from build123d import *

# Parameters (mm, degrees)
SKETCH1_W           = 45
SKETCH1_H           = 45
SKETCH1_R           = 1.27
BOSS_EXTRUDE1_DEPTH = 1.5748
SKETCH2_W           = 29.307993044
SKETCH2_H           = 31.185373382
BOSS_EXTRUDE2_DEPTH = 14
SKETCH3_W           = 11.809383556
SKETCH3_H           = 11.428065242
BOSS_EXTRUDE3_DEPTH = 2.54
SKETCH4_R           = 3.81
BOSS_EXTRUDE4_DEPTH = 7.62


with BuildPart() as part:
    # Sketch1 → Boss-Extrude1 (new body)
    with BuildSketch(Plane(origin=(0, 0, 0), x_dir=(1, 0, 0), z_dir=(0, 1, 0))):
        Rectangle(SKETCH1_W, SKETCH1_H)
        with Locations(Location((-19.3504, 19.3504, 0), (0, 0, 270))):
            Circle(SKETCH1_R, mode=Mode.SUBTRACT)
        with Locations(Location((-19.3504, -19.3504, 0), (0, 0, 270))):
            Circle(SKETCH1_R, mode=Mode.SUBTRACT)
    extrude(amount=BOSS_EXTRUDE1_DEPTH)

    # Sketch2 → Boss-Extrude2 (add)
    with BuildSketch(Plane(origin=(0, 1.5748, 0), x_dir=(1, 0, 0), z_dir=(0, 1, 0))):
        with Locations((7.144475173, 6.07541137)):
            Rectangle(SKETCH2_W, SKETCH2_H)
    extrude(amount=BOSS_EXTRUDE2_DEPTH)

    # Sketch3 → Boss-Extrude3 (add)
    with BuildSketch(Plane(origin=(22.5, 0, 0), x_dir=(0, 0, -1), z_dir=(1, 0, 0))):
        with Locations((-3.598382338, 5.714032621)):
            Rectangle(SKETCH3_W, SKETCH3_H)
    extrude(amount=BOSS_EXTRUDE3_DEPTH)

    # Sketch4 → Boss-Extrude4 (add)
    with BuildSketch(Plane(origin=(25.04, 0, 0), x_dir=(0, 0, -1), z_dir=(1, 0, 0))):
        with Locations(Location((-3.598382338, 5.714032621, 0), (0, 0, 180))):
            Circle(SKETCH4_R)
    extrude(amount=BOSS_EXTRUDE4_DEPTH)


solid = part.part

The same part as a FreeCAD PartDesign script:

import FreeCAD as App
import Part
import Sketcher
Q = App.Units.Quantity


def add_polygon(sketch, points):
    """Adds a closed chain of lines whose ends are joined by coincident constraints."""
    first, n = sketch.GeometryCount, len(points)
    for a, b in zip(points, points[1:] + points[:1]):
        sketch.addGeometry(Part.LineSegment(App.Vector(*a, 0), App.Vector(*b, 0)), False)
    for i in range(n):
        sketch.addConstraint(Sketcher.Constraint("Coincident", first + i, 2, first + (i + 1) % n, 1))

doc = App.newDocument("Part")
body = doc.addObject("PartDesign::Body", "Body")

# Sketch on XZ plane
sketch1 = body.newObject("Sketcher::SketchObject", "Sketch")
sketch1.AttachmentSupport = (doc.getObject("XZ_Plane"), [""])
sketch1.MapMode = "FlatFace"
add_polygon(sketch1, [(-22.5, -22.5), (-22.5, 22.5), (22.5, 22.5), (22.5, -22.5)])  # lines 0-3
sketch1.addGeometry(Part.Circle(App.Vector(-19.4, 19.4, 0), App.Vector(0, 0, 1), 1.3), False)  # 4
sketch1.addGeometry(Part.Circle(App.Vector(-19.4, -19.4, 0), App.Vector(0, 0, 1), 1.3), False)  # 5
sketch1.addConstraint(Sketcher.Constraint("Vertical", 0))
sketch1.addConstraint(Sketcher.Constraint("Horizontal", 1))
sketch1.addConstraint(Sketcher.Constraint("Vertical", 2))
sketch1.addConstraint(Sketcher.Constraint("Horizontal", 3))
sketch1.addConstraint(Sketcher.Constraint("Equal", 4, 5))
sketch1.addConstraint(Sketcher.Constraint("Symmetric", 0, 2, 2, 2, -1, 1))
sketch1.addConstraint(Sketcher.Constraint("Symmetric", 4, 3, 5, 3, -1))
sketch1.addConstraint(Sketcher.Constraint("Equal", 3, 0))
sketch1.addConstraint(Sketcher.Constraint("Diameter", 4, Q("0.1 in")))
sketch1.addConstraint(Sketcher.Constraint("DistanceX", 0, 2, 4, 3, Q("0.124 in")))
sketch1.addConstraint(Sketcher.Constraint("DistanceY", 4, 3, 0, 2, Q("0.124 in")))
sketch1.addConstraint(Sketcher.Constraint("DistanceX", 1, 1, 1, 2, 45.0))
pad1 = body.newObject("PartDesign::Pad", "Pad")
pad1.Profile = sketch1
pad1.Length = Q("0.062 in")
pad1.Reversed = True

# Sketch on XZ plane
sketch2 = body.newObject("Sketcher::SketchObject", "Sketch001")
sketch2.AttachmentSupport = (doc.getObject("XZ_Plane"), [""])
sketch2.MapMode = "FlatFace"
sketch2.AttachmentOffset = App.Placement(App.Vector(0, 0, -0.062 * 25.4), App.Rotation())
add_polygon(sketch2, [(-8, -22), (-8, 10), (22, 10), (22, -22)])  # lines 0-3
sketch2.addConstraint(Sketcher.Constraint("Vertical", 0))
sketch2.addConstraint(Sketcher.Constraint("Horizontal", 1))
sketch2.addConstraint(Sketcher.Constraint("Vertical", 2))
sketch2.addConstraint(Sketcher.Constraint("Horizontal", 3))
sketch2.addConstraint(Sketcher.Constraint("DistanceY", 2, 2, -1, 1, 21.668098))
sketch2.addConstraint(Sketcher.Constraint("DistanceX", 1, 1, 1, 2, 29.307993))
sketch2.addConstraint(Sketcher.Constraint("DistanceY", 0, 1, 0, 2, 31.185373))
sketch2.addConstraint(Sketcher.Constraint("DistanceX", 0, 2, -1, 1, 7.509521))
pad2 = body.newObject("PartDesign::Pad", "Pad001")
pad2.Profile = sketch2
pad2.Length = 14
pad2.Reversed = True

# Sketch on YZ plane
sketch3 = body.newObject("Sketcher::SketchObject", "Sketch002")
sketch3.AttachmentSupport = (doc.getObject("YZ_Plane"), [""])
sketch3.MapMode = "FlatFace"
sketch3.AttachmentOffset = App.Placement(App.Vector(0, 0, 22.5), App.Rotation())
add_polygon(sketch3, [(11, 10), (0, 10), (0, -2), (11, -2)])  # lines 0-3
sketch3.addConstraint(Sketcher.Constraint("Horizontal", 0))
sketch3.addConstraint(Sketcher.Constraint("Vertical", 1))
sketch3.addConstraint(Sketcher.Constraint("Horizontal", 2))
sketch3.addConstraint(Sketcher.Constraint("Vertical", 3))
sketch3.addConstraint(Sketcher.Constraint("PointOnObject", 0, 2, -2))
sketch3.addConstraint(Sketcher.Constraint("DistanceX", 0, 2, 0, 1, 11.428065))
sketch3.addConstraint(Sketcher.Constraint("DistanceY", 1, 2, 1, 1, 11.809384))
sketch3.addConstraint(Sketcher.Constraint("DistanceY", 1, 2, -1, 1, 2.306309))
pad3 = body.newObject("PartDesign::Pad", "Pad002")
pad3.Profile = sketch3
pad3.Length = Q("0.1 in")

# Sketch on YZ plane
sketch4 = body.newObject("Sketcher::SketchObject", "Sketch003")
sketch4.AttachmentSupport = (doc.getObject("YZ_Plane"), [""])
sketch4.MapMode = "FlatFace"
sketch4.AttachmentOffset = App.Placement(App.Vector(0, 0, 25.04), App.Rotation())
sketch4.addGeometry(Part.Circle(App.Vector(5.7, 3.6, 0), App.Vector(0, 0, 1), 3.8), False)
sketch4.addConstraint(Sketcher.Constraint("Diameter", 0, Q("0.3 in")))
sketch4.addConstraint(Sketcher.Constraint("DistanceX", -1, 1, 0, 3, 5.714033))
sketch4.addConstraint(Sketcher.Constraint("DistanceY", -1, 1, 0, 3, 3.598382))
pad4 = body.newObject("PartDesign::Pad", "Pad003")
pad4.Profile = sketch4
pad4.Length = Q("0.3 in")

doc.recompute()
